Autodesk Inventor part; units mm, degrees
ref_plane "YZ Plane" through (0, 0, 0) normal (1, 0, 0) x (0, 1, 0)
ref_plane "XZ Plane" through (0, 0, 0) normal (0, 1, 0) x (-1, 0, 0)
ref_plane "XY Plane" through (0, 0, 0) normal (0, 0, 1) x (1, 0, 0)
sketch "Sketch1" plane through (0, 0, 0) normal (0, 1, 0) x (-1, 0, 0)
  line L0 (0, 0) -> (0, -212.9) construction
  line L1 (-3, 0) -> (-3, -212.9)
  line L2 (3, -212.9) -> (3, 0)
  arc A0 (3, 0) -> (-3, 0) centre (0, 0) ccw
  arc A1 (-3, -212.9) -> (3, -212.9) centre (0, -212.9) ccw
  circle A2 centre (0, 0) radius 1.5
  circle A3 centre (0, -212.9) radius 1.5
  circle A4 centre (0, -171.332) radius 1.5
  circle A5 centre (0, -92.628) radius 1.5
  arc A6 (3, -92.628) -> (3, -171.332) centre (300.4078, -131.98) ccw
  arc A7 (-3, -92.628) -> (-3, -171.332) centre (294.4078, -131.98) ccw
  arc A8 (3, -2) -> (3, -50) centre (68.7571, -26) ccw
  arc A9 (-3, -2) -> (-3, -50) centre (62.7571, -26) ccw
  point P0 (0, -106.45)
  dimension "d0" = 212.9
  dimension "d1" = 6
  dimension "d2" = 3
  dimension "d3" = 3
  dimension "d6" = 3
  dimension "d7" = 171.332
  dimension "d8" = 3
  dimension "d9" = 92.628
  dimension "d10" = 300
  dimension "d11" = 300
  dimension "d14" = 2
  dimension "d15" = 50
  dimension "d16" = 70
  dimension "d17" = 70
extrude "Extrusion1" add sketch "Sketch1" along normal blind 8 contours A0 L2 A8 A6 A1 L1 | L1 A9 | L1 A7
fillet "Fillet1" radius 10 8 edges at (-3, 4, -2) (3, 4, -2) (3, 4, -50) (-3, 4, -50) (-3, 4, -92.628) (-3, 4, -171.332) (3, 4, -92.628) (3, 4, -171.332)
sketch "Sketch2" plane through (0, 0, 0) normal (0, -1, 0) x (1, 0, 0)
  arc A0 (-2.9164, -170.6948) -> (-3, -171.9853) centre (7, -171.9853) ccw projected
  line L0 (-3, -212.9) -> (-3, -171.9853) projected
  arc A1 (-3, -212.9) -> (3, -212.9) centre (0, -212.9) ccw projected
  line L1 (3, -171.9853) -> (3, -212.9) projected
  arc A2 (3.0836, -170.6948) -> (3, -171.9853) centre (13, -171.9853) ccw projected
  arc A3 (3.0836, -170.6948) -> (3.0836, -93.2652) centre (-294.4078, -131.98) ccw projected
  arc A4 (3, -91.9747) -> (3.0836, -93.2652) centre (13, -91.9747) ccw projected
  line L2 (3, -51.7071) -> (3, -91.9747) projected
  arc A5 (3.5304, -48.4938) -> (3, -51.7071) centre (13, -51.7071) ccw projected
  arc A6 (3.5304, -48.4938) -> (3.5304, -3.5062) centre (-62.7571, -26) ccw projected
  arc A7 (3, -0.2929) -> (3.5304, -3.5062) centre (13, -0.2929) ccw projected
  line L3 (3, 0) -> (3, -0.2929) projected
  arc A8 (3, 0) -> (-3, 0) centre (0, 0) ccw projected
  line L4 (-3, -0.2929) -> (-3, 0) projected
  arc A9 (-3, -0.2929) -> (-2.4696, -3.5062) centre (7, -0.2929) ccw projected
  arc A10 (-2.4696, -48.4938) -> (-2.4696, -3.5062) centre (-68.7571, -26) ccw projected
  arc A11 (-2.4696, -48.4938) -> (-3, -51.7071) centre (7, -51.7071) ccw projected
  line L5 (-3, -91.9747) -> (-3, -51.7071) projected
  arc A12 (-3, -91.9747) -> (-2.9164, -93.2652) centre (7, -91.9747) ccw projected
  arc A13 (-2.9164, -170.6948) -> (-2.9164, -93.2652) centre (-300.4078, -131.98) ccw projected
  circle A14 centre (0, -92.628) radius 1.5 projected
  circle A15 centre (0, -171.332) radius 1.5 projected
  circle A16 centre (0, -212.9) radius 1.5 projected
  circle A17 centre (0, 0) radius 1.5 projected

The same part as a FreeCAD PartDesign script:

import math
import FreeCAD as App
import Part
import Sketcher


def edges_at(feature, points):
    """Names of the edges that pass closest to the given points."""
    edges = feature.Shape.Edges
    near = lambda p: min(range(len(edges)), key=lambda i: edges[i].distToShape(Part.Vertex(*p))[0])
    return sorted({f"Edge{near(p) + 1}" for p in points})

doc = App.newDocument("Part")
body = doc.addObject("PartDesign::Body", "Body")

sketch1 = body.newObject("Sketcher::SketchObject", "Sketch")
sketch1.AttachmentSupport = (doc.getObject("XZ_Plane"), [""])
sketch1.MapMode = "FlatFace"
sketch1.addGeometry([
    Part.ArcOfCircle(Part.Circle(App.Vector(0, 0, 0), App.Vector(0, 0, 1), 3), math.radians(0), math.radians(180)),
    Part.LineSegment(App.Vector(3, 0, 0), App.Vector(3, -2, 0)),
    Part.ArcOfCircle(Part.Circle(App.Vector(-62.8, -26, 0), App.Vector(0, 0, 1), 70), math.radians(-20), math.radians(20)),
    Part.LineSegment(App.Vector(3, -50, 0), App.Vector(3, -92.6, 0)),
    Part.ArcOfCircle(Part.Circle(App.Vector(-294.4, -132, 0), App.Vector(0, 0, 1), 300), math.radians(-7.54), math.radians(7.54)),
    Part.LineSegment(App.Vector(3, -171.3, 0), App.Vector(3, -212.9, 0)),
    Part.ArcOfCircle(Part.Circle(App.Vector(0, -212.9, 0), App.Vector(0, 0, 1), 3), math.radians(180), math.radians(360)),
    Part.LineSegment(App.Vector(-3, -212.9, 0), App.Vector(-3, -171.3, 0)),
    Part.ArcOfCircle(Part.Circle(App.Vector(-300.4, -132, 0), App.Vector(0, 0, 1), 300), math.radians(-7.54), math.radians(7.54)),
    Part.LineSegment(App.Vector(-3, -92.6, 0), App.Vector(-3, -50, 0)),
    Part.ArcOfCircle(Part.Circle(App.Vector(-68.8, -26, 0), App.Vector(0, 0, 1), 70), math.radians(-20), math.radians(20)),
    Part.LineSegment(App.Vector(-3, -2, 0), App.Vector(-3, 0, 0)),
    Part.Circle(App.Vector(0, -212.9, 0), App.Vector(0, 0, 1), 1.5),
    Part.Circle(App.Vector(0, -171.3, 0), App.Vector(0, 0, 1), 1.5),
    Part.Circle(App.Vector(0, -92.6, 0), App.Vector(0, 0, 1), 1.5),
    Part.Circle(App.Vector(0, 0, 0), App.Vector(0, 0, 1), 1.5),
], False)
sketch1.addConstraint([
    Sketcher.Constraint("Tangent", 0, 1, 1, 1),
    Sketcher.Constraint("Coincident", 1, 2, 2, 2),
    Sketcher.Constraint("Coincident", 2, 1, 3, 1),
    Sketcher.Constraint("Coincident", 3, 2, 4, 2),
    Sketcher.Constraint("Coincident", 4, 1, 5, 1),
    Sketcher.Constraint("Tangent", 5, 2, 6, 2),
    Sketcher.Constraint("Tangent", 6, 1, 7, 1),
    Sketcher.Constraint("Coincident", 7, 2, 8, 1),
    Sketcher.Constraint("Coincident", 8, 2, 9, 1),
    Sketcher.Constraint("Coincident", 9, 2, 10, 1),
    Sketcher.Constraint("Coincident", 10, 2, 11, 1),
    Sketcher.Constraint("Tangent", 11, 2, 0, 2),
    Sketcher.Constraint("Vertical", 1),
    Sketcher.Constraint("Vertical", 3),
    Sketcher.Constraint("Vertical", 5),
    Sketcher.Constraint("Vertical", 7),
    Sketcher.Constraint("Vertical", 9),
    Sketcher.Constraint("Vertical", 11),
    Sketcher.Constraint("Coincident", 0, 3, -1, 1),
    Sketcher.Constraint("Coincident", 15, 3, -1, 1),
    Sketcher.Constraint("Coincident", 12, 3, 6, 3),
    Sketcher.Constraint("Equal", 0, 6),
    Sketcher.Constraint("Equal", 4, 8),
    Sketcher.Constraint("Equal", 2, 10),
    Sketcher.Constraint("Equal", 12, 13),
    Sketcher.Constraint("Equal", 13, 14),
    Sketcher.Constraint("Equal", 14, 15),
    Sketcher.Constraint("Symmetric", 4, 1, 7, 2, -2),
    Sketcher.Constraint("Symmetric", 3, 2, 8, 2, -2),
    Sketcher.Constraint("PointOnObject", 13, 3, -2),
    Sketcher.Constraint("PointOnObject", 14, 3, -2),
    Sketcher.Constraint("Horizontal", 4, 3, 8, 3),
    Sketcher.Constraint("Horizontal", 2, 3, 10, 3),
    Sketcher.Constraint("Horizontal", 14, 3, 3, 2),
    Sketcher.Constraint("Horizontal", 13, 3, 4, 1),
    Sketcher.Constraint("Horizontal", 2, 1, 9, 2),
    Sketcher.Constraint("Diameter", 12, 3.0),
    Sketcher.Constraint("Radius", 0, 3.0),
    Sketcher.Constraint("Radius", 2, 70.0),
    Sketcher.Constraint("Radius", 4, 300.0),
    Sketcher.Constraint("DistanceY", 1, 2, 1, 1, 2.0),
    Sketcher.Constraint("DistanceY", 2, 1, -1, 1, 50.0),
    Sketcher.Constraint("DistanceY", 6, 3, -1, 1, 212.9),
    Sketcher.Constraint("DistanceY", 13, 3, -1, 1, 171.332),
    Sketcher.Constraint("DistanceY", 14, 3, -1, 1, 92.628),
])
pad1 = body.newObject("PartDesign::Pad", "Pad")
pad1.Profile = sketch1
pad1.Length = 8
pad1.Reversed = True
doc.recompute()

fillet = body.newObject("PartDesign::Fillet", "Fillet")
fillet.Base = (pad1, edges_at(pad1, [
    (-3, 4, -2),
    (3, 4, -2),
    (3, 4, -50),
    (-3, 4, -50),
    (-3, 4, -92.628),
    (-3, 4, -171.332),
    (3, 4, -92.628),
    (3, 4, -171.332),
]))
fillet.Radius = 10

doc.recompute()
